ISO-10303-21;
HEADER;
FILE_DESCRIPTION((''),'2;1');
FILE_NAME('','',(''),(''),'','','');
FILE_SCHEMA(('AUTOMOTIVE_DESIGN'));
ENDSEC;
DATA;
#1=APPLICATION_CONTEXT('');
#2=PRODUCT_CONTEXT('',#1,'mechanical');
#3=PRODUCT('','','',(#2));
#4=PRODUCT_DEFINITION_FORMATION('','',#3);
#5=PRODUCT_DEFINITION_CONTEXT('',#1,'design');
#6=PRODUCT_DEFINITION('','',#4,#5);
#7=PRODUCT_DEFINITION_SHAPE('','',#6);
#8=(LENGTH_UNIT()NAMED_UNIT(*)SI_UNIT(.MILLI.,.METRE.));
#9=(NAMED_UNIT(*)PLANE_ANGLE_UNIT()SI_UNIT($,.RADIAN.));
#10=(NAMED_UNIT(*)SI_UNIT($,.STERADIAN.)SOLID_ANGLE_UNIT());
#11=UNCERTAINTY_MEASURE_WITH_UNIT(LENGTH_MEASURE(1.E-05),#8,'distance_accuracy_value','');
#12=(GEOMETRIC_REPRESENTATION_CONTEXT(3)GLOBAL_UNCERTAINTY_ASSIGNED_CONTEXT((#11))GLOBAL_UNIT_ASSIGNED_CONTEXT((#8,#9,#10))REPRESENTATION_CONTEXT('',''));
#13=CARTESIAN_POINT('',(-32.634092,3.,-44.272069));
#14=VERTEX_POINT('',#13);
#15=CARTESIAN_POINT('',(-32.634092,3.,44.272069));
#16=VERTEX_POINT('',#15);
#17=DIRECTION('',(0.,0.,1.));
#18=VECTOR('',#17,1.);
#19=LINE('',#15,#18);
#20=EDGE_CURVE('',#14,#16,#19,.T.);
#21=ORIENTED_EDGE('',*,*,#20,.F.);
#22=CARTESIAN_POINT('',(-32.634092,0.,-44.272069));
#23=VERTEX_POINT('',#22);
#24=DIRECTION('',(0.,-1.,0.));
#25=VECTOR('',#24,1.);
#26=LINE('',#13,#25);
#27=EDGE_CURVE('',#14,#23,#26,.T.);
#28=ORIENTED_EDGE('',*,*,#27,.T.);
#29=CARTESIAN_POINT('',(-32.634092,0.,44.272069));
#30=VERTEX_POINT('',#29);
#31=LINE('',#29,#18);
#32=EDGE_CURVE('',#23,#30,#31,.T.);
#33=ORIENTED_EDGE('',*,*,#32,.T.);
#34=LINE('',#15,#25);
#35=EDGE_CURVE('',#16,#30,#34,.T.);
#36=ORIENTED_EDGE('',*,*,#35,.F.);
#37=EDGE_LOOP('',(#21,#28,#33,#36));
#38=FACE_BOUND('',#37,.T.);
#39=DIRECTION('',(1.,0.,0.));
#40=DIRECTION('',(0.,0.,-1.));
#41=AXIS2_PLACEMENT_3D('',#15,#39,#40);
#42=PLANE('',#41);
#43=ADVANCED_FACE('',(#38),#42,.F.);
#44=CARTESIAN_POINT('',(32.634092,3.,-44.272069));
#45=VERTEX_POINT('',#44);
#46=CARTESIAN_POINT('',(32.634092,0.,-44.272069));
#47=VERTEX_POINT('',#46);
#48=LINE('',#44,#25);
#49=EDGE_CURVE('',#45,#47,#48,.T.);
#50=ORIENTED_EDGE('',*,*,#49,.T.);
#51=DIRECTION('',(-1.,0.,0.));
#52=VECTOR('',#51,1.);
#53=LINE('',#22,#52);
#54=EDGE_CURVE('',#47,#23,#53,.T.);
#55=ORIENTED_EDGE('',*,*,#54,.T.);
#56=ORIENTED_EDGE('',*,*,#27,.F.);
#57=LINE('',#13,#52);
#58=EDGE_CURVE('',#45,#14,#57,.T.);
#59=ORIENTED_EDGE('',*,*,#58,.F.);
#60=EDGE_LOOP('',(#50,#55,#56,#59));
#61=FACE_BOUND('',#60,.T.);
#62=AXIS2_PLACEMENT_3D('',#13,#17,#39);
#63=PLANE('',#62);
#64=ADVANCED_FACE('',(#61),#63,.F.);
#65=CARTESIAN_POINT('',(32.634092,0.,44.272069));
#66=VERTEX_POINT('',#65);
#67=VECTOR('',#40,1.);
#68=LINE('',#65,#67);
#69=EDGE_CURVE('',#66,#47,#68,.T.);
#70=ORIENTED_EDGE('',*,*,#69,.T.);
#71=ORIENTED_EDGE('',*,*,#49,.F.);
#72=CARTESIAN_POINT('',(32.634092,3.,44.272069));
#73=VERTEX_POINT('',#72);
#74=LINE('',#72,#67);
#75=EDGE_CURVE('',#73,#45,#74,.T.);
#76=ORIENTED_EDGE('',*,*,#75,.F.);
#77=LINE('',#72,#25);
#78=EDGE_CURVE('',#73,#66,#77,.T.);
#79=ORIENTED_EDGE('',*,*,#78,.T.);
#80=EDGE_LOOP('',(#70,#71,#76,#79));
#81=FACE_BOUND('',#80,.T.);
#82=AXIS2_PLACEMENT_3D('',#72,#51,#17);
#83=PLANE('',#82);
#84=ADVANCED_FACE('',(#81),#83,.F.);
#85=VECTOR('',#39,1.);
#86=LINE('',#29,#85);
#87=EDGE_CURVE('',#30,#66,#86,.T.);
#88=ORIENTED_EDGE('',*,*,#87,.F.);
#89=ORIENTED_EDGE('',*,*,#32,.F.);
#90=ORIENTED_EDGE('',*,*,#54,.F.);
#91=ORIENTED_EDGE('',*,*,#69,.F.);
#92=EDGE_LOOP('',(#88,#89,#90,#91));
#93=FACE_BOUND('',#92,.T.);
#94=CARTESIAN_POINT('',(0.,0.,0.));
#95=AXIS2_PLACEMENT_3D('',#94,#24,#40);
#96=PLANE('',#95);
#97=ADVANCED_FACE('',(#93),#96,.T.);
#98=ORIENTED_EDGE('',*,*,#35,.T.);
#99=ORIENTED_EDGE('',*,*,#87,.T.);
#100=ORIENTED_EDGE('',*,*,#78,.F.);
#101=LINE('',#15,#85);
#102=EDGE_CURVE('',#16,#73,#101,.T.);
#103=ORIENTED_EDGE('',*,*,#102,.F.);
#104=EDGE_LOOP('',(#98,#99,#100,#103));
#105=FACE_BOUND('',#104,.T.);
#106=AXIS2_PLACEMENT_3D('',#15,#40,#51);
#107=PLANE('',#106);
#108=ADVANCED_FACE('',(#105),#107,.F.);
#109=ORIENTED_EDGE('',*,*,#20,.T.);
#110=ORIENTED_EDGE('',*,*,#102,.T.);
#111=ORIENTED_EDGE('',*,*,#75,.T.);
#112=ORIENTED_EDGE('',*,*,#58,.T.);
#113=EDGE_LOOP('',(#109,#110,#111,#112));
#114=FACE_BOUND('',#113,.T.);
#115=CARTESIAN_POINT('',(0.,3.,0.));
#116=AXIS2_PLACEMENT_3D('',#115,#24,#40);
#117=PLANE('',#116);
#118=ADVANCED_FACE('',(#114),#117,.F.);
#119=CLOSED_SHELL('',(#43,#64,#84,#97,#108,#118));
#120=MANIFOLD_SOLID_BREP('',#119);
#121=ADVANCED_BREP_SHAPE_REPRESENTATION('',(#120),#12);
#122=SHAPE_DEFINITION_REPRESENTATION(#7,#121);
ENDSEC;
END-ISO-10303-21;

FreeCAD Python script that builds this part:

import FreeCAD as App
import Part
import Sketcher
from FreeCAD import Vector


def add_polygon(sketch, points):
    """Adds a closed chain of lines whose ends are joined by coincident constraints."""
    first, n = sketch.GeometryCount, len(points)
    for a, b in zip(points, points[1:] + points[:1]):
        sketch.addGeometry(Part.LineSegment(App.Vector(*a, 0), App.Vector(*b, 0)), False)
    for i in range(n):
        sketch.addConstraint(Sketcher.Constraint("Coincident", first + i, 2, first + (i + 1) % n, 1))

doc = App.newDocument("Part")
body = doc.addObject("PartDesign::Body", "Body")

# Sketch on XZ plane
sketch1 = doc.addObject("Sketcher::SketchObject", "Sketch")
body.addObject(sketch1)
sketch1.AttachmentSupport = (doc.XZ_Plane, [""])
sketch1.MapMode = "FlatFace"
add_polygon(sketch1, [(-32.634092, -44.272069), (-32.634092, 44.272069), (32.634092, 44.272069), (32.634092, -44.272069)])  # lines 0-3
sketch1.addConstraint(Sketcher.Constraint("Vertical", 0))
sketch1.addConstraint(Sketcher.Constraint("Horizontal", 1))
sketch1.addConstraint(Sketcher.Constraint("Vertical", 2))
sketch1.addConstraint(Sketcher.Constraint("Horizontal", 3))
sketch1.addConstraint(Sketcher.Constraint("Symmetric", 0, 2, 2, 2, -1, 1))
sketch1.addConstraint(Sketcher.Constraint("DistanceX", 1, 1, 1, 2, 65.268184))
sketch1.addConstraint(Sketcher.Constraint("DistanceY", 0, 1, 0, 2, 88.544137))
pad1 = doc.addObject("PartDesign::Pad", "Pad")
body.addObject(pad1)
pad1.Profile = sketch1
pad1.Length = 3
pad1.Reversed = True

doc.recompute()
